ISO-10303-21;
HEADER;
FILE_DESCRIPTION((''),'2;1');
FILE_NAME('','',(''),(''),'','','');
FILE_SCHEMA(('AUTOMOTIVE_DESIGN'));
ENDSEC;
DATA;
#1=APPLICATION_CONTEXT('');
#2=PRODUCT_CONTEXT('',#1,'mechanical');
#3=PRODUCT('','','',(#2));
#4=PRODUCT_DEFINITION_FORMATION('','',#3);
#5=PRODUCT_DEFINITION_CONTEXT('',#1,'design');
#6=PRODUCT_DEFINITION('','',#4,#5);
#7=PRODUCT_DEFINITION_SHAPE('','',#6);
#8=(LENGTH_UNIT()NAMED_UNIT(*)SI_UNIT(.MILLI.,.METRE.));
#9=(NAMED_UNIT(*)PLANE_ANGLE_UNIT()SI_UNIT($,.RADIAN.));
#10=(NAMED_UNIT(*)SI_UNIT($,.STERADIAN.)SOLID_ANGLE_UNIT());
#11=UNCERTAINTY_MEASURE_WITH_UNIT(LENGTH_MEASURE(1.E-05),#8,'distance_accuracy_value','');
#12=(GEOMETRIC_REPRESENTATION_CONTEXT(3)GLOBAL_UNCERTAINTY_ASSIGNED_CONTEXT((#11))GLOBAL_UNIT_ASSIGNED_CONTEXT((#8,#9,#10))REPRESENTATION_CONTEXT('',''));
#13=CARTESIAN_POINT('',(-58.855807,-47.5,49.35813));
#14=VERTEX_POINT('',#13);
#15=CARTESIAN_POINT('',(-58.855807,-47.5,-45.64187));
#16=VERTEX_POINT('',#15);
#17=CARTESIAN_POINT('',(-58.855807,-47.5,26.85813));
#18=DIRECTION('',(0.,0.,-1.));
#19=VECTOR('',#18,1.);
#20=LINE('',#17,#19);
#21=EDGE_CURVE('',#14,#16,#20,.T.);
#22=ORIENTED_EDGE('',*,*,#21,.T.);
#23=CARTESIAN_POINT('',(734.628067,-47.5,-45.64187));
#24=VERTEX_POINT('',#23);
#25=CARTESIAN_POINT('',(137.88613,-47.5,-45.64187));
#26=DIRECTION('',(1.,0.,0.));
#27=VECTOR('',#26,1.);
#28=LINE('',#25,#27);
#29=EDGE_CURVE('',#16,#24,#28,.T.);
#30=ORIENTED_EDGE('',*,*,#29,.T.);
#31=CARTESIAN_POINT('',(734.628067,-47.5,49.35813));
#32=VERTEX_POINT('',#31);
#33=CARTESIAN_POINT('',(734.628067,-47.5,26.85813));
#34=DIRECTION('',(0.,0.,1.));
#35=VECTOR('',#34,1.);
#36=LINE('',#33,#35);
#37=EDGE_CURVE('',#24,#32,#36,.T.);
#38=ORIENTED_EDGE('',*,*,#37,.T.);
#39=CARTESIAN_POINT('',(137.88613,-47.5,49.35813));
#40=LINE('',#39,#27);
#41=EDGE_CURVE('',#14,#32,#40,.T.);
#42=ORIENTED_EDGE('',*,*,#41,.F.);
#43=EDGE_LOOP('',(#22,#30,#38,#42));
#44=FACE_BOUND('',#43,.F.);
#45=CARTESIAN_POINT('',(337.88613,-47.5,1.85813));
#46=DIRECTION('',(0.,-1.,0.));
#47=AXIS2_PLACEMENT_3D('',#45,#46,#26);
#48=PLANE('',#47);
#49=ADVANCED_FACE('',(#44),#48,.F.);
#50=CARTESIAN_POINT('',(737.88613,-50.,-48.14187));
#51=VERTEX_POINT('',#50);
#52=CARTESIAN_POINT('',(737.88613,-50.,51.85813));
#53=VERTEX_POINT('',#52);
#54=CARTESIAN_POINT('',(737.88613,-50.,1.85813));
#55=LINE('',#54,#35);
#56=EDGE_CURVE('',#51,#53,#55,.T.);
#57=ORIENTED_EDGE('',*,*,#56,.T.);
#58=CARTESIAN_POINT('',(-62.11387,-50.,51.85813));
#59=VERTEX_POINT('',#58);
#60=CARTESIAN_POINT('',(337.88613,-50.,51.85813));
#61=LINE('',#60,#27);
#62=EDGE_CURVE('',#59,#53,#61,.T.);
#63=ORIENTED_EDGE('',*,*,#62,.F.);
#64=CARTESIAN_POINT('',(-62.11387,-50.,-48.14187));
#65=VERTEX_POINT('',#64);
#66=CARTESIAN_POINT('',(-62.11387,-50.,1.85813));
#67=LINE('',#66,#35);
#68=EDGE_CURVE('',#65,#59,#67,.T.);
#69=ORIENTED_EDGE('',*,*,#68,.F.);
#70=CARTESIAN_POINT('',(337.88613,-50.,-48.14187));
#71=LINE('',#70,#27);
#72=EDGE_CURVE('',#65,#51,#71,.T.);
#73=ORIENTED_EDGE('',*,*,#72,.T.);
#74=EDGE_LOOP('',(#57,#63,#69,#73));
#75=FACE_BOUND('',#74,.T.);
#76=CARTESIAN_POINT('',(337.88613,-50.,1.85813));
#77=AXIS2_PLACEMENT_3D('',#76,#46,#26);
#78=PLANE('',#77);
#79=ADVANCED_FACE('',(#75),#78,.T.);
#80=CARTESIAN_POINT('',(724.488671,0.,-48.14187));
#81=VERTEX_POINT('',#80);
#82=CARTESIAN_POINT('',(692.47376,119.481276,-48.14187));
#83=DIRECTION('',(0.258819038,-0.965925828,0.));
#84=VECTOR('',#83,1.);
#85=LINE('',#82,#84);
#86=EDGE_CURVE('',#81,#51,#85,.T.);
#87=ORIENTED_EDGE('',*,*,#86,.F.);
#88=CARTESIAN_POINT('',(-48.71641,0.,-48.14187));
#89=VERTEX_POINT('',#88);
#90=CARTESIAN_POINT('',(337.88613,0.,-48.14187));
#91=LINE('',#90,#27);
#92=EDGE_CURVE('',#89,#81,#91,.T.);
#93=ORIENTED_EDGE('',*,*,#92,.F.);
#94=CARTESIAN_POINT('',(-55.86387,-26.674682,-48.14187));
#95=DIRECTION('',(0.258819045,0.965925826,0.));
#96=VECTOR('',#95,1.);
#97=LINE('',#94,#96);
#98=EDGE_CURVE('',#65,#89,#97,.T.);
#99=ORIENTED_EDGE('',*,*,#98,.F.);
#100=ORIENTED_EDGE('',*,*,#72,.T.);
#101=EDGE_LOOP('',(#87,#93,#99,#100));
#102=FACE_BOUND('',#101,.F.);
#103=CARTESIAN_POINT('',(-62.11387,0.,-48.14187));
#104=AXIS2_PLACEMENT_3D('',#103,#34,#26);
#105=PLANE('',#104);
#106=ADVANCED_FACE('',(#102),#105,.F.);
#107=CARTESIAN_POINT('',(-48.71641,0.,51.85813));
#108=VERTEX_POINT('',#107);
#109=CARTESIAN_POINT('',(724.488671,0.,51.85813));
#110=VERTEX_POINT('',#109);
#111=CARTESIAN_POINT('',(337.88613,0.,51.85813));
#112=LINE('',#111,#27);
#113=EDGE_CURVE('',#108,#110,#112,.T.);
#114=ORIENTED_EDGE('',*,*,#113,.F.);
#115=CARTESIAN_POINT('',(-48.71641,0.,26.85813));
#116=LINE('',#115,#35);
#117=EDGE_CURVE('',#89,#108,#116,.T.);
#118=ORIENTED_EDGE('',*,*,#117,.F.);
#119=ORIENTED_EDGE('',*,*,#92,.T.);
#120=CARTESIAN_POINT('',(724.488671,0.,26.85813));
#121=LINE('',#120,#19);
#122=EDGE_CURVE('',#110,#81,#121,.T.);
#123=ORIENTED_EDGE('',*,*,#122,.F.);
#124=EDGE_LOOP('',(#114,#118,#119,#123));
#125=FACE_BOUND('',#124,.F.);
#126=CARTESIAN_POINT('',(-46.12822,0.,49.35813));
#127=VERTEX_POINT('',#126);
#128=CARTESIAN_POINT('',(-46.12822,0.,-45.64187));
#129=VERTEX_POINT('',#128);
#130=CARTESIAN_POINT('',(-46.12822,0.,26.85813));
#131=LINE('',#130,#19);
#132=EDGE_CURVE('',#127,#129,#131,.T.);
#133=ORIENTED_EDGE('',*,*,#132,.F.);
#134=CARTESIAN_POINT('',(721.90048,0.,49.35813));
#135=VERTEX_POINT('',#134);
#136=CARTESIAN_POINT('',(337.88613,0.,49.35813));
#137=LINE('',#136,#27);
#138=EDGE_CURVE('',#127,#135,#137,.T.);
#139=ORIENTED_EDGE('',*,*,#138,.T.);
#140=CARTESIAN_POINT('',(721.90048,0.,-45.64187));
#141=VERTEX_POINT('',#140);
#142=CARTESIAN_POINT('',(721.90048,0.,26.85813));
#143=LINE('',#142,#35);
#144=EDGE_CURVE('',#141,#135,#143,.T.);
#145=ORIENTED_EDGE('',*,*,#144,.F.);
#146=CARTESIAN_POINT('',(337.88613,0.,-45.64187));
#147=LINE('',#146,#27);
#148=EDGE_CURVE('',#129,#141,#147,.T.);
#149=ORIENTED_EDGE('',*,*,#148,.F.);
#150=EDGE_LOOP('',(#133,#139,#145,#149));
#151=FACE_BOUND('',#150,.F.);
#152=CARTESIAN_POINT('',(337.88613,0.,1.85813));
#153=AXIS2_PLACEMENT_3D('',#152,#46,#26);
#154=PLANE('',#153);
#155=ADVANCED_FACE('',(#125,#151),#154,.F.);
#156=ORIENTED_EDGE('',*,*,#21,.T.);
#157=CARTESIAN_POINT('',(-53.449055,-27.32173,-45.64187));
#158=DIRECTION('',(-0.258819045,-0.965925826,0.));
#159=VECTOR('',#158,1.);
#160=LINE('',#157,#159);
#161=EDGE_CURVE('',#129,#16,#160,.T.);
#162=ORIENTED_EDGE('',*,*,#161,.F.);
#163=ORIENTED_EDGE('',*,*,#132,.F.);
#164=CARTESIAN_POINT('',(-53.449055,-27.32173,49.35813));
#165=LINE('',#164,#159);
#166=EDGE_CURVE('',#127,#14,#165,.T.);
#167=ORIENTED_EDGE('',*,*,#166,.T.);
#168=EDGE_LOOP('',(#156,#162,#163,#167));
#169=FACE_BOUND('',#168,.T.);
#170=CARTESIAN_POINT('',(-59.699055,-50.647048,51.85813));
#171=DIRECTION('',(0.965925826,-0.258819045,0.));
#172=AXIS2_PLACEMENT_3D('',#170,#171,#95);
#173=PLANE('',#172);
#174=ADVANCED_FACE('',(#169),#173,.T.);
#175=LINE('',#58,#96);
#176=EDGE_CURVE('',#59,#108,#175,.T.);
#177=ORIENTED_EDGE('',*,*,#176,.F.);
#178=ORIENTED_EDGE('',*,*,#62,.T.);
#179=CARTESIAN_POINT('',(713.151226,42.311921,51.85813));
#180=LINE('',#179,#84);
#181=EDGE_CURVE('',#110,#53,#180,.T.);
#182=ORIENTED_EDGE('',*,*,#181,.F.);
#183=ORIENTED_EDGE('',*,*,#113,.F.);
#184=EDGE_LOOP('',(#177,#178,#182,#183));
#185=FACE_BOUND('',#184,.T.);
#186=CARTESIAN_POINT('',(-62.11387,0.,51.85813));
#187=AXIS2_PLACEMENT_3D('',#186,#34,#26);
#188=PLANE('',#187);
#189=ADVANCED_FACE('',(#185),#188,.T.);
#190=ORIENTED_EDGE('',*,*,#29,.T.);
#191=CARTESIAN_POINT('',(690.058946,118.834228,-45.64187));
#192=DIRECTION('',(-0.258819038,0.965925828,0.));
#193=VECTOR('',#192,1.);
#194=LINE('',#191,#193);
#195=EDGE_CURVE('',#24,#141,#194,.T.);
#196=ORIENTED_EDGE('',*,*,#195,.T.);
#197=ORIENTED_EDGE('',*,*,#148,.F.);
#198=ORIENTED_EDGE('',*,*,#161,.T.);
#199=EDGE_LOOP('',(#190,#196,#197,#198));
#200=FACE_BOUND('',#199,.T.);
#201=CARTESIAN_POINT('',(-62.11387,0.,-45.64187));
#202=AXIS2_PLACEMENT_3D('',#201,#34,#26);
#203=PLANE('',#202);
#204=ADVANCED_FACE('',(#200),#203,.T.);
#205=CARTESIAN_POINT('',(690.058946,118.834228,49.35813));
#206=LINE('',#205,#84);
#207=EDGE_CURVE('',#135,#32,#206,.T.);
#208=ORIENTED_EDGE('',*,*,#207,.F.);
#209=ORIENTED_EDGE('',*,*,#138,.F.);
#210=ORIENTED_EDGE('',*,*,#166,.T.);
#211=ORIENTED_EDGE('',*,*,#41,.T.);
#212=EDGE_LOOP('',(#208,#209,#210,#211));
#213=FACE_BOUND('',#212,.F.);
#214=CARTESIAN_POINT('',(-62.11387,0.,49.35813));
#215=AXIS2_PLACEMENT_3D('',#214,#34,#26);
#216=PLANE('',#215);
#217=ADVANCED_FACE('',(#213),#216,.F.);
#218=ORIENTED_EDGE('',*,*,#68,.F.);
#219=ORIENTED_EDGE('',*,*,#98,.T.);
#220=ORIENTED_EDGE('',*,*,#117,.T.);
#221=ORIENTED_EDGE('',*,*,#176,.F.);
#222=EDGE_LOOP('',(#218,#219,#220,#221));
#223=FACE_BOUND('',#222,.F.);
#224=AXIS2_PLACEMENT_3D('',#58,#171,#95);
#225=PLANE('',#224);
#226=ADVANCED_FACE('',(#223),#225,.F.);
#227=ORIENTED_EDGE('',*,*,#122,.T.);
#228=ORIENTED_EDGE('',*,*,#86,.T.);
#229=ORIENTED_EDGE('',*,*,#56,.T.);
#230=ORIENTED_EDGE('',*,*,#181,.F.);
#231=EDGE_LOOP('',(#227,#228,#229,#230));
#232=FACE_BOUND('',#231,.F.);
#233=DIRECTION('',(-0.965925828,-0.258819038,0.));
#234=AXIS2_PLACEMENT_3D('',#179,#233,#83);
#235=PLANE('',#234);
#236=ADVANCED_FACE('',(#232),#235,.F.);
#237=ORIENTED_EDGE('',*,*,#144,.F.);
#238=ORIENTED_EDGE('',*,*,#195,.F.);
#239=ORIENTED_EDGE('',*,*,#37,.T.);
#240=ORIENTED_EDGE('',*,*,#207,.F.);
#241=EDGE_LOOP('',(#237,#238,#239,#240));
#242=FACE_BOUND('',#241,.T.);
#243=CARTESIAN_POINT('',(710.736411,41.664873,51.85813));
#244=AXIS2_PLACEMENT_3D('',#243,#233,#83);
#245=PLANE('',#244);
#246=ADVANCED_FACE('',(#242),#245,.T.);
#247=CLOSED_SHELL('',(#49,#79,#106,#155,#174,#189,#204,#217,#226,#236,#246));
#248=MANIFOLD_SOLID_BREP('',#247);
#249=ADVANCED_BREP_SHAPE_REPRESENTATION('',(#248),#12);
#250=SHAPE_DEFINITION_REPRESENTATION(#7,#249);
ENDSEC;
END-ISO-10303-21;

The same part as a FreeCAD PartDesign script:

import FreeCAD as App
import Part
import Sketcher
from FreeCAD import Vector
Q = App.Units.Quantity


def faces_at(feature, points):
    """Names of the faces that lie closest to the given points."""
    faces = feature.Shape.Faces
    near = lambda p: min(range(len(faces)), key=lambda i: faces[i].distToShape(Part.Vertex(*p))[0])
    return sorted({f"Face{near(p) + 1}" for p in points})

doc = App.newDocument("Part")
body = doc.addObject("PartDesign::Body", "Body")

sketch1 = doc.addObject("Sketcher::SketchObject", "Sketch")
body.addObject(sketch1)
sketch1.AttachmentSupport = (doc.XZ_Plane, [""])
sketch1.MapMode = "FlatFace"
sketch1.addGeometry([
    Part.LineSegment(Vector(-62, 52, 0), Vector(-62, -48, 0)),
    Part.LineSegment(Vector(-62, -48, 0), Vector(738, -48, 0)),
    Part.LineSegment(Vector(738, -48, 0), Vector(738, 52, 0)),
    Part.LineSegment(Vector(738, 52, 0), Vector(-62, 52, 0)),
], False)
sketch1.addConstraint([
    Sketcher.Constraint("Coincident", 0, 2, 1, 1),
    Sketcher.Constraint("Coincident", 1, 2, 2, 1),
    Sketcher.Constraint("Coincident", 2, 2, 3, 1),
    Sketcher.Constraint("Coincident", 3, 2, 0, 1),
    Sketcher.Constraint("Vertical", 0),
    Sketcher.Constraint("Horizontal", 1),
    Sketcher.Constraint("Vertical", 2),
    Sketcher.Constraint("Horizontal", 3),
    Sketcher.Constraint("DistanceX", 1, 1, 1, 2, Q("800 mm")),
    Sketcher.Constraint("DistanceY", 0, 2, 0, 1, Q("100 mm")),
    Sketcher.Constraint("DistanceX", 0, 2, -1, 1, Q("62.11387 mm")),
    Sketcher.Constraint("DistanceY", 0, 2, -1, 1, Q("48.14187 mm")),
])
pad1 = doc.addObject("PartDesign::Pad", "Pad")
body.addObject(pad1)
pad1.Profile = sketch1
pad1.Length = 50

sketch2 = doc.addObject("Sketcher::SketchObject", "Sketch001")
body.addObject(sketch2)
sketch2.AttachmentSupport = (doc.XY_Plane, [""])
sketch2.MapMode = "FlatFace"
sketch2.AttachmentOffset = App.Placement(Vector(0, 0, 51.85813), App.Rotation())
sketch2.addGeometry([
    Part.LineSegment(Vector(-61.9, -52, 0), Vector(-62.1, -50, 0)),
    Part.LineSegment(Vector(-62.1, -50, 0), Vector(-36.1, 47.2, 0)),
    Part.LineSegment(Vector(-36.1, 47.2, 0), Vector(-99.2, 0, 0)),
    Part.LineSegment(Vector(-99.2, 0, 0), Vector(-90.4, -71.5, 0)),
    Part.LineSegment(Vector(-90.4, -71.5, 0), Vector(-61.9, -52, 0)),
    Part.LineSegment(Vector(713.2, 42.3, 0), Vector(737.9, -50, 0)),
    Part.LineSegment(Vector(737.9, -50, 0), Vector(805.3, -50.9, 0)),
    Part.LineSegment(Vector(805.3, -50.9, 0), Vector(814, 33.6, 0)),
    Part.LineSegment(Vector(814, 33.6, 0), Vector(713.2, 42.3, 0)),
], False)
sketch2.addConstraint([
    Sketcher.Constraint("Coincident", 0, 2, 1, 1),
    Sketcher.Constraint("Coincident", 1, 2, 2, 1),
    Sketcher.Constraint("Coincident", 2, 2, 3, 1),
    Sketcher.Constraint("Coincident", 3, 2, 4, 1),
    Sketcher.Constraint("Coincident", 4, 2, 0, 1),
    Sketcher.Constraint("Coincident", 5, 2, 6, 1),
    Sketcher.Constraint("Coincident", 6, 2, 7, 1),
    Sketcher.Constraint("Coincident", 7, 2, 8, 1),
    Sketcher.Constraint("Coincident", 8, 2, 5, 1),
    Sketcher.Constraint("PointOnObject", 2, 2, -1),
    Sketcher.Constraint("Horizontal", 0, 2, 5, 2),
    Sketcher.Constraint("Angle", 1, Q("75 deg")),
    Sketcher.Constraint("Angle", 5, Q("-75 deg")),
    Sketcher.Constraint("DistanceY", 0, 2, -1, 1, Q("50 mm")),
    Sketcher.Constraint("DistanceX", 0, 2, 5, 2, Q("800 mm")),
    Sketcher.Constraint("Distance", 4, Q("34.502998 mm")),
    Sketcher.Constraint("DistanceX", 2, 2, 0, 2, Q("37.050802 mm")),
    Sketcher.Constraint("DistanceX", 3, 2, 0, 2, Q("28.313499 mm")),
    Sketcher.Constraint("Distance", 0, Q("1.999469 mm")),
    Sketcher.Constraint("Distance", 6, Q("67.461612 mm")),
    Sketcher.Constraint("Distance", 8, Q("101.234319 mm")),
    Sketcher.Constraint("DistanceX", 0, 2, -1, 1, Q("62.11387 mm")),
    Sketcher.Constraint("DistanceY", -1, 1, 1, 2, Q("47.197729 mm")),
    Sketcher.Constraint("DistanceY", 3, 2, -1, 1, Q("71.46059 mm")),
    Sketcher.Constraint("DistanceY", 6, 2, -1, 1, Q("50.860211 mm")),
    Sketcher.Constraint("DistanceX", -1, 1, 7, 2, Q("814.011762 mm")),
    Sketcher.Constraint("DistanceY", -1, 1, 8, 2, Q("42.311921 mm")),
])
pocket1 = doc.addObject("PartDesign::Pocket", "Pocket")
body.addObject(pocket1)
pocket1.Profile = sketch2
pocket1.Type = "ThroughAll"
doc.recompute()

thickness = doc.addObject("PartDesign::Thickness", "Thickness")
body.addObject(thickness)
thickness.Base = (pocket1, faces_at(pocket1, [(337.886, 0, 1.858)]))
thickness.Value = 2.5
thickness.Reversed = True
thickness.Join = "Arc"

doc.recompute()
